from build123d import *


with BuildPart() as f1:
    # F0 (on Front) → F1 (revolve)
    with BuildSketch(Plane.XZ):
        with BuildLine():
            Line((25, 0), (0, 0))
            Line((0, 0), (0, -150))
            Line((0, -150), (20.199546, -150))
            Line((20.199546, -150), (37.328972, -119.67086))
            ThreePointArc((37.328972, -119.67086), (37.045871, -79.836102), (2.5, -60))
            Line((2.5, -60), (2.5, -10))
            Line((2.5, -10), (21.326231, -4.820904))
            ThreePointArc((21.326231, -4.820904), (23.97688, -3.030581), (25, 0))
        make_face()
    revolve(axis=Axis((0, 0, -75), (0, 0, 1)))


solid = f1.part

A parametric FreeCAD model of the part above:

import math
import FreeCAD as App
import Part
import Sketcher
Q = App.Units.Quantity

doc = App.newDocument("Part")
body = doc.addObject("PartDesign::Body", "Body")

# Sketch on XZ plane
sketch1 = body.newObject("Sketcher::SketchObject", "Sketch")
sketch1.AttachmentSupport = (doc.getObject("XZ_Plane"), [""])
sketch1.MapMode = "FlatFace"
sketch1.addGeometry([
    Part.LineSegment(App.Vector(25, 0, 0), App.Vector(0, 0, 0)),  # 0
    Part.LineSegment(App.Vector(0, 0, 0), App.Vector(0, -150, 0)),  # 1
    Part.LineSegment(App.Vector(0, -150, 0), App.Vector(20, -150, 0)),  # 2
    Part.LineSegment(App.Vector(20, -150, 0), App.Vector(37, -120, 0)),  # 3
    Part.ArcOfCircle(Part.Circle(App.Vector(2, -100, 0), App.Vector(0, 0, 1), 40), math.radians(-29), math.radians(90)),  # 4
    Part.LineSegment(App.Vector(2, -60, 0), App.Vector(2, -10, 0)),  # 5
    Part.LineSegment(App.Vector(2, -10, 0), App.Vector(21, -5, 0)),  # 6
    Part.ArcOfCircle(Part.Circle(App.Vector(20, 0, 0), App.Vector(0, 0, 1), 5), math.radians(-75), math.radians(0)),  # 7
], False)
sketch1.addConstraint([
    Sketcher.Constraint("Coincident", 0, 2, 1, 1),
    Sketcher.Constraint("Coincident", 1, 2, 2, 1),
    Sketcher.Constraint("Coincident", 2, 2, 3, 1),
    Sketcher.Constraint("Tangent", 3, 2, 4, 1),
    Sketcher.Constraint("Coincident", 4, 2, 5, 1),
    Sketcher.Constraint("Coincident", 5, 2, 6, 1),
    Sketcher.Constraint("Tangent", 6, 2, 7, 1),
    Sketcher.Constraint("Coincident", 7, 2, 0, 1),
    Sketcher.Constraint("Horizontal", 0),
    Sketcher.Constraint("Vertical", 1),
    Sketcher.Constraint("Horizontal", 2),
    Sketcher.Constraint("Vertical", 5),
    Sketcher.Constraint("Coincident", 0, 2, -1, 1),
    Sketcher.Constraint("PointOnObject", 7, 3, -1),
    Sketcher.Constraint("Radius", 4, Q("40 mm")),
    Sketcher.Constraint("DistanceX", 0, 2, 0, 1, Q("25 mm")),
    Sketcher.Constraint("DistanceY", 1, 2, 1, 1, Q("150 mm")),
    Sketcher.Constraint("DistanceY", 5, 1, 5, 2, Q("50 mm")),
    Sketcher.Constraint("DistanceY", 4, 3, -1, 1, Q("100 mm")),
    Sketcher.Constraint("DistanceX", -1, 1, 4, 3, Q("2.5 mm")),
    Sketcher.Constraint("DistanceX", -1, 1, 4, 2, Q("2.5 mm")),
    Sketcher.Constraint("Radius", 7, Q("5.000003 mm")),
    Sketcher.Constraint("DistanceX", 2, 1, 2, 2, Q("20.199546 mm")),
])
revolution = body.newObject("PartDesign::Revolution", "Revolution")
revolution.Profile = sketch1
revolution.ReferenceAxis = (sketch1, ["V_Axis"])
revolution.Angle = 360

doc.recompute()
